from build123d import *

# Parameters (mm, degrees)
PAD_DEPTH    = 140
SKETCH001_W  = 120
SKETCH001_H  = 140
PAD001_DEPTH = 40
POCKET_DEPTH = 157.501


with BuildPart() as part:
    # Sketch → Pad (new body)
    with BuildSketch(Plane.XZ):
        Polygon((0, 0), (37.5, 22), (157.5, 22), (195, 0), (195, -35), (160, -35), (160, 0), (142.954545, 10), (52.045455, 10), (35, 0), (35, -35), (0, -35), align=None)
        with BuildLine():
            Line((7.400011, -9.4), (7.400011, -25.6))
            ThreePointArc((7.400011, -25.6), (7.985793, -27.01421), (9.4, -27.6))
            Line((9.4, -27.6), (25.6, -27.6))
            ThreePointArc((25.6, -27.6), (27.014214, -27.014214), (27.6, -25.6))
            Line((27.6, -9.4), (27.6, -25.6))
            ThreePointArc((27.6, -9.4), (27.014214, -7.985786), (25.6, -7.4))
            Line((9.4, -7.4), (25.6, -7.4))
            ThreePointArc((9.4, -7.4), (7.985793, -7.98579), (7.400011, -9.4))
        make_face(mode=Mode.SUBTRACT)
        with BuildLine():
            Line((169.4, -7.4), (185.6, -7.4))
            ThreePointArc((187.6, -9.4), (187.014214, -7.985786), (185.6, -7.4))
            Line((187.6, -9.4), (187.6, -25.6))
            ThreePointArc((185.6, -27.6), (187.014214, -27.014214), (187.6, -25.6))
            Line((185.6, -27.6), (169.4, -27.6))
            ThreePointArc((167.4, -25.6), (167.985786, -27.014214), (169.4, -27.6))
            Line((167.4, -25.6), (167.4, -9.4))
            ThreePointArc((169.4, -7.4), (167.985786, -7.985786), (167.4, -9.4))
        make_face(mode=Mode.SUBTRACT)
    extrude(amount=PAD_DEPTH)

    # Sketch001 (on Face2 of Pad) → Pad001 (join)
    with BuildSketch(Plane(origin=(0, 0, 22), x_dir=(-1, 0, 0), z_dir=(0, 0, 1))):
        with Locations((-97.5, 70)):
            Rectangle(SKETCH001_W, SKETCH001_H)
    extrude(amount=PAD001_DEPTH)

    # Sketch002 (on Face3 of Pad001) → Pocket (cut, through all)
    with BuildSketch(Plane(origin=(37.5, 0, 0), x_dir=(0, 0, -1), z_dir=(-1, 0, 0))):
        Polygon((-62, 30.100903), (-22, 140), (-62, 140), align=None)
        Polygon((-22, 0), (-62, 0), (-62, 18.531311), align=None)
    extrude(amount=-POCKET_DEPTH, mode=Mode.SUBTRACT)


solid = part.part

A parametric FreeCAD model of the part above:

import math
import FreeCAD as App
import Part
import Sketcher
from FreeCAD import Vector
Q = App.Units.Quantity

doc = App.newDocument("Part")
body = doc.addObject("PartDesign::Body", "Body")

# Sketch on XZ plane
sketch1 = body.newObject("Sketcher::SketchObject", "Sketch")
sketch1.AttachmentSupport = (doc.getObject("XZ_Plane"), [""])
sketch1.MapMode = "FlatFace"
sketch1.addGeometry([
    Part.LineSegment(Vector(37.5, 22, 0), Vector(0, 0, 0)),  # 0
    Part.LineSegment(Vector(0, 0, 0), Vector(0, -35, 0)),  # 1
    Part.LineSegment(Vector(0, -35, 0), Vector(35, -35, 0)),  # 2
    Part.LineSegment(Vector(35, -35, 0), Vector(35, 0, 0)),  # 3
    Part.LineSegment(Vector(35, 0, 0), Vector(52.045455, 10, 0)),  # 4
    Part.LineSegment(Vector(52.045455, 10, 0), Vector(142.954545, 10, 0)),  # 5
    Part.LineSegment(Vector(142.954545, 10, 0), Vector(160, 0, 0)),  # 6
    Part.LineSegment(Vector(160, 0, 0), Vector(160, -35, 0)),  # 7
    Part.LineSegment(Vector(160, -35, 0), Vector(195, -35, 0)),  # 8
    Part.LineSegment(Vector(195, -35, 0), Vector(195, 0, 0)),  # 9
    Part.LineSegment(Vector(195, 0, 0), Vector(157.5, 22, 0)),  # 10
    Part.LineSegment(Vector(157.5, 22, 0), Vector(37.5, 22, 0)),  # 11
    Part.ArcOfCircle(Part.Circle(Vector(9.40001, -9.399999, 0), Vector(0, 0, 1), 1.999999), math.radians(90.000272), math.radians(180.000043)),  # 12
    Part.LineSegment(Vector(9.4, -7.4, 0), Vector(25.6, -7.4, 0)),  # 13
    Part.ArcOfCircle(Part.Circle(Vector(25.600001, -9.399999, 0), Vector(0, 0, 1), 1.999999), math.radians(-0.000043), math.radians(90.000043)),  # 14
    Part.LineSegment(Vector(27.6, -9.4, 0), Vector(27.6, -25.6, 0)),  # 15
    Part.ArcOfCircle(Part.Circle(Vector(25.600001, -25.600001, 0), Vector(0, 0, 1), 1.999999), math.radians(-90.000043), math.radians(0.000043)),  # 16
    Part.LineSegment(Vector(25.6, -27.6, 0), Vector(9.4, -27.6, 0)),  # 17
    Part.ArcOfCircle(Part.Circle(Vector(9.40001, -25.600001, 0), Vector(0, 0, 1), 1.999999), math.radians(179.999957), math.radians(269.999728)),  # 18
    Part.LineSegment(Vector(7.400011, -25.6, 0), Vector(7.400011, -9.4, 0)),  # 19
    Part.LineSegment(Vector(169.4, -7.4, 0), Vector(185.6, -7.4, 0)),  # 20
    Part.ArcOfCircle(Part.Circle(Vector(185.600001, -9.399999, 0), Vector(0, 0, 1), 1.999999), math.radians(-0.000043), math.radians(90.000043)),  # 21
    Part.LineSegment(Vector(187.6, -9.4, 0), Vector(187.6, -25.6, 0)),  # 22
    Part.ArcOfCircle(Part.Circle(Vector(185.600001, -25.600001, 0), Vector(0, 0, 1), 1.999999), math.radians(-90.000043), math.radians(0.000043)),  # 23
    Part.LineSegment(Vector(185.6, -27.6, 0), Vector(169.4, -27.6, 0)),  # 24
    Part.ArcOfCircle(Part.Circle(Vector(169.399999, -25.600001, 0), Vector(0, 0, 1), 1.999999), math.radians(179.999957), math.radians(270.000043)),  # 25
    Part.LineSegment(Vector(167.4, -25.6, 0), Vector(167.4, -9.4, 0)),  # 26
    Part.ArcOfCircle(Part.Circle(Vector(169.399999, -9.399999, 0), Vector(0, 0, 1), 1.999999), math.radians(89.999957), math.radians(180.000043)),  # 27
], False)
sketch1.addConstraint([
    Sketcher.Constraint("Coincident", 0, 2, 1, 1),
    Sketcher.Constraint("Coincident", 1, 2, 2, 1),
    Sketcher.Constraint("Coincident", 2, 2, 3, 1),
    Sketcher.Constraint("Coincident", 3, 2, 4, 1),
    Sketcher.Constraint("Coincident", 4, 2, 5, 1),
    Sketcher.Constraint("Coincident", 5, 2, 6, 1),
    Sketcher.Constraint("Coincident", 6, 2, 7, 1),
    Sketcher.Constraint("Coincident", 7, 2, 8, 1),
    Sketcher.Constraint("Coincident", 8, 2, 9, 1),
    Sketcher.Constraint("Coincident", 9, 2, 10, 1),
    Sketcher.Constraint("Coincident", 10, 2, 11, 1),
    Sketcher.Constraint("Coincident", 11, 2, 0, 1),
    Sketcher.Constraint("Coincident", 12, 1, 13, 1),
    Sketcher.Constraint("Tangent", 13, 2, 14, 2),
    Sketcher.Constraint("Tangent", 14, 1, 15, 1),
    Sketcher.Constraint("Tangent", 15, 2, 16, 2),
    Sketcher.Constraint("Tangent", 16, 1, 17, 1),
    Sketcher.Constraint("Coincident", 17, 2, 18, 2),
    Sketcher.Constraint("Tangent", 18, 1, 19, 1),
    Sketcher.Constraint("Tangent", 19, 2, 12, 2),
    Sketcher.Constraint("Tangent", 20, 2, 21, 2),
    Sketcher.Constraint("Tangent", 21, 1, 22, 1),
    Sketcher.Constraint("Tangent", 22, 2, 23, 2),
    Sketcher.Constraint("Tangent", 23, 1, 24, 1),
    Sketcher.Constraint("Tangent", 24, 2, 25, 2),
    Sketcher.Constraint("Tangent", 25, 1, 26, 1),
    Sketcher.Constraint("Tangent", 26, 2, 27, 2),
    Sketcher.Constraint("Tangent", 27, 1, 20, 1),
    Sketcher.Constraint("Vertical", 1),
    Sketcher.Constraint("Horizontal", 2),
    Sketcher.Constraint("Vertical", 3),
    Sketcher.Constraint("Horizontal", 5),
    Sketcher.Constraint("Vertical", 7),
    Sketcher.Constraint("Horizontal", 8),
    Sketcher.Constraint("Vertical", 9),
    Sketcher.Constraint("Horizontal", 11),
    Sketcher.Constraint("Horizontal", 13),
    Sketcher.Constraint("Vertical", 15),
    Sketcher.Constraint("Horizontal", 17),
    Sketcher.Constraint("Vertical", 19),
    Sketcher.Constraint("Horizontal", 20),
    Sketcher.Constraint("Vertical", 22),
    Sketcher.Constraint("Horizontal", 24),
    Sketcher.Constraint("Vertical", 26),
    Sketcher.Constraint("Coincident", 0, 2, -1, 1),
    Sketcher.Constraint("Equal", 12, 14),
    Sketcher.Constraint("Equal", 14, 16),
    Sketcher.Constraint("Equal", 16, 18),
    Sketcher.Constraint("Equal", 18, 21),
    Sketcher.Constraint("Equal", 21, 23),
    Sketcher.Constraint("Equal", 23, 25),
    Sketcher.Constraint("Equal", 25, 27),
    Sketcher.Constraint("PointOnObject", 3, 2, -1),
    Sketcher.Constraint("PointOnObject", 6, 2, -1),
    Sketcher.Constraint("PointOnObject", 9, 2, -1),
    Sketcher.Constraint("Parallel", 0, 4),
    Sketcher.Constraint("Parallel", 6, 10),
    Sketcher.Constraint("Horizontal", 14, 3, 21, 3),
    Sketcher.Constraint("Horizontal", 18, 3, 23, 3),
    Sketcher.Constraint("Horizontal", 2, 2, 7, 2),
    Sketcher.Constraint("Vertical", 12, 1, 17, 2),
    Sketcher.Constraint("Equal", 2, 8),
    Sketcher.Constraint("Equal", 17, 20),
    Sketcher.Constraint("Equal", 8, 1),
    Sketcher.Constraint("Equal", 24, 15),
    Sketcher.Constraint("Equal", 4, 6),
    Sketcher.Constraint("Radius", 12, Q("1.999999 mm")),
    Sketcher.Constraint("DistanceX", 2, 1, 2, 2, Q("35 mm")),
    Sketcher.Constraint("DistanceX", 11, 2, 11, 1, Q("120 mm")),
    Sketcher.Constraint("DistanceX", 13, 1, 13, 2, Q("16.2 mm")),
    Sketcher.Constraint("DistanceY", -1, 1, 4, 2, Q("10 mm")),
    Sketcher.Constraint("DistanceX", -1, 1, 6, 2, Q("160 mm")),
    Sketcher.Constraint("DistanceY", -1, 1, 10, 2, Q("22 mm")),
    Sketcher.Constraint("DistanceX", 14, 3, 21, 3, Q("160 mm")),
    Sketcher.Constraint("DistanceY", 12, 3, -1, 1, Q("9.399999 mm")),
    Sketcher.Constraint("DistanceX", -1, 1, 14, 3, Q("25.600001 mm")),
    Sketcher.Constraint("DistanceX", -1, 1, 12, 3, Q("9.40001 mm")),
])
pad1 = body.newObject("PartDesign::Pad", "Pad")
pad1.Profile = sketch1
pad1.Length = 140

# Sketch on XY plane
sketch2 = body.newObject("Sketcher::SketchObject", "Sketch001")
sketch2.AttachmentSupport = (doc.getObject("XY_Plane"), [""])
sketch2.MapMode = "FlatFace"
sketch2.AttachmentOffset = App.Placement(Vector(0, 0, 22), App.Rotation())
sketch2.addGeometry([
    Part.LineSegment(Vector(157.5, -140, 0), Vector(157.5, 0, 0)),
    Part.LineSegment(Vector(157.5, 0, 0), Vector(37.5, 0, 0)),
    Part.LineSegment(Vector(37.5, 0, 0), Vector(37.5, -140, 0)),
    Part.LineSegment(Vector(37.5, -140, 0), Vector(157.5, -140, 0)),
], False)
sketch2.addConstraint([
    Sketcher.Constraint("Coincident", 0, 2, 1, 1),
    Sketcher.Constraint("Coincident", 1, 2, 2, 1),
    Sketcher.Constraint("Coincident", 2, 2, 3, 1),
    Sketcher.Constraint("Coincident", 3, 2, 0, 1),
    Sketcher.Constraint("Vertical", 0),
    Sketcher.Constraint("Horizontal", 1),
    Sketcher.Constraint("Vertical", 2),
    Sketcher.Constraint("Horizontal", 3),
    Sketcher.Constraint("PointOnObject", 0, 2, -1),
    Sketcher.Constraint("DistanceX", 1, 2, 1, 1, Q("120 mm")),
    Sketcher.Constraint("DistanceY", 0, 1, 0, 2, Q("140 mm")),
    Sketcher.Constraint("DistanceX", -1, 1, 0, 2, Q("157.5 mm")),
])
pad2 = body.newObject("PartDesign::Pad", "Pad001")
pad2.Profile = sketch2
pad2.Length = 40

# Sketch on YZ plane
sketch3 = body.newObject("Sketcher::SketchObject", "Sketch002")
sketch3.AttachmentSupport = (doc.getObject("YZ_Plane"), [""])
sketch3.MapMode = "FlatFace"
sketch3.AttachmentOffset = App.Placement(Vector(0, 0, 37.5), App.Rotation())
sketch3.addGeometry([
    Part.LineSegment(Vector(-30.100903, 62, 0), Vector(-140, 22, 0)),  # 0
    Part.LineSegment(Vector(-140, 22, 0), Vector(-140, 62, 0)),  # 1
    Part.LineSegment(Vector(-140, 62, 0), Vector(-30.100903, 62, 0)),  # 2
    Part.LineSegment(Vector(0, 62, 0), Vector(0, 22, 0)),  # 3
    Part.LineSegment(Vector(0, 22, 0), Vector(-18.531311, 62, 0)),  # 4
    Part.LineSegment(Vector(-18.531311, 62, 0), Vector(0, 62, 0)),  # 5
], False)
sketch3.addConstraint([
    Sketcher.Constraint("Coincident", 0, 2, 1, 1),
    Sketcher.Constraint("Coincident", 1, 2, 2, 1),
    Sketcher.Constraint("Coincident", 2, 2, 0, 1),
    Sketcher.Constraint("Coincident", 3, 2, 4, 1),
    Sketcher.Constraint("Coincident", 4, 2, 5, 1),
    Sketcher.Constraint("Coincident", 5, 2, 3, 1),
    Sketcher.Constraint("Vertical", 1),
    Sketcher.Constraint("Horizontal", 2),
    Sketcher.Constraint("Vertical", 3),
    Sketcher.Constraint("Horizontal", 5),
    Sketcher.Constraint("PointOnObject", 3, 2, -2),
    Sketcher.Constraint("Horizontal", 0, 2, 3, 2),
    Sketcher.Constraint("Horizontal", 2, 2, 4, 2),
    Sketcher.Constraint("DistanceY", 1, 1, 1, 2, Q("40 mm")),
    Sketcher.Constraint("Angle", 0, Q("-160 deg")),
    Sketcher.Constraint("DistanceX", 0, 2, -1, 1, Q("140 mm")),
    Sketcher.Constraint("DistanceY", -1, 1, 0, 2, Q("22 mm")),
    Sketcher.Constraint("DistanceX", 5, 1, 5, 2, Q("18.531311 mm")),
])
pocket1 = body.newObject("PartDesign::Pocket", "Pocket")
pocket1.Profile = sketch3
pocket1.Type = "ThroughAll"
pocket1.Reversed = True

doc.recompute()
